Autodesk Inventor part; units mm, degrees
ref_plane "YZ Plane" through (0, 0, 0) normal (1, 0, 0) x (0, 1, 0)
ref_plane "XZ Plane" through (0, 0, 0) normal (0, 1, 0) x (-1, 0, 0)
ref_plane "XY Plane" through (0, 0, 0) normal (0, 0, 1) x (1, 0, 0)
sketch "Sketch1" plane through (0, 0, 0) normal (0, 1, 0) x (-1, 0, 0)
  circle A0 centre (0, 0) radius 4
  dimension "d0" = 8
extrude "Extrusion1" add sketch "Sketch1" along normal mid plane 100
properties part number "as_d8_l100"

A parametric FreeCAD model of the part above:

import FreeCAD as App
import Part
import Sketcher
from FreeCAD import Vector

doc = App.newDocument("Part")
body = doc.addObject("PartDesign::Body", "Body")

sketch1 = body.newObject("Sketcher::SketchObject", "Sketch")
sketch1.AttachmentSupport = (doc.getObject("XZ_Plane"), [""])
sketch1.MapMode = "FlatFace"
sketch1.addGeometry(Part.Circle(Vector(0, 0, 0), Vector(0, 0, 1), 4), False)
sketch1.addConstraint([
    Sketcher.Constraint("Coincident", 0, 3, -1, 1),
    Sketcher.Constraint("Diameter", 0, 8.0),
])
pad1 = body.newObject("PartDesign::Pad", "Pad")
pad1.Profile = sketch1
pad1.Length = 100
pad1.Midplane = True

doc.recompute()
